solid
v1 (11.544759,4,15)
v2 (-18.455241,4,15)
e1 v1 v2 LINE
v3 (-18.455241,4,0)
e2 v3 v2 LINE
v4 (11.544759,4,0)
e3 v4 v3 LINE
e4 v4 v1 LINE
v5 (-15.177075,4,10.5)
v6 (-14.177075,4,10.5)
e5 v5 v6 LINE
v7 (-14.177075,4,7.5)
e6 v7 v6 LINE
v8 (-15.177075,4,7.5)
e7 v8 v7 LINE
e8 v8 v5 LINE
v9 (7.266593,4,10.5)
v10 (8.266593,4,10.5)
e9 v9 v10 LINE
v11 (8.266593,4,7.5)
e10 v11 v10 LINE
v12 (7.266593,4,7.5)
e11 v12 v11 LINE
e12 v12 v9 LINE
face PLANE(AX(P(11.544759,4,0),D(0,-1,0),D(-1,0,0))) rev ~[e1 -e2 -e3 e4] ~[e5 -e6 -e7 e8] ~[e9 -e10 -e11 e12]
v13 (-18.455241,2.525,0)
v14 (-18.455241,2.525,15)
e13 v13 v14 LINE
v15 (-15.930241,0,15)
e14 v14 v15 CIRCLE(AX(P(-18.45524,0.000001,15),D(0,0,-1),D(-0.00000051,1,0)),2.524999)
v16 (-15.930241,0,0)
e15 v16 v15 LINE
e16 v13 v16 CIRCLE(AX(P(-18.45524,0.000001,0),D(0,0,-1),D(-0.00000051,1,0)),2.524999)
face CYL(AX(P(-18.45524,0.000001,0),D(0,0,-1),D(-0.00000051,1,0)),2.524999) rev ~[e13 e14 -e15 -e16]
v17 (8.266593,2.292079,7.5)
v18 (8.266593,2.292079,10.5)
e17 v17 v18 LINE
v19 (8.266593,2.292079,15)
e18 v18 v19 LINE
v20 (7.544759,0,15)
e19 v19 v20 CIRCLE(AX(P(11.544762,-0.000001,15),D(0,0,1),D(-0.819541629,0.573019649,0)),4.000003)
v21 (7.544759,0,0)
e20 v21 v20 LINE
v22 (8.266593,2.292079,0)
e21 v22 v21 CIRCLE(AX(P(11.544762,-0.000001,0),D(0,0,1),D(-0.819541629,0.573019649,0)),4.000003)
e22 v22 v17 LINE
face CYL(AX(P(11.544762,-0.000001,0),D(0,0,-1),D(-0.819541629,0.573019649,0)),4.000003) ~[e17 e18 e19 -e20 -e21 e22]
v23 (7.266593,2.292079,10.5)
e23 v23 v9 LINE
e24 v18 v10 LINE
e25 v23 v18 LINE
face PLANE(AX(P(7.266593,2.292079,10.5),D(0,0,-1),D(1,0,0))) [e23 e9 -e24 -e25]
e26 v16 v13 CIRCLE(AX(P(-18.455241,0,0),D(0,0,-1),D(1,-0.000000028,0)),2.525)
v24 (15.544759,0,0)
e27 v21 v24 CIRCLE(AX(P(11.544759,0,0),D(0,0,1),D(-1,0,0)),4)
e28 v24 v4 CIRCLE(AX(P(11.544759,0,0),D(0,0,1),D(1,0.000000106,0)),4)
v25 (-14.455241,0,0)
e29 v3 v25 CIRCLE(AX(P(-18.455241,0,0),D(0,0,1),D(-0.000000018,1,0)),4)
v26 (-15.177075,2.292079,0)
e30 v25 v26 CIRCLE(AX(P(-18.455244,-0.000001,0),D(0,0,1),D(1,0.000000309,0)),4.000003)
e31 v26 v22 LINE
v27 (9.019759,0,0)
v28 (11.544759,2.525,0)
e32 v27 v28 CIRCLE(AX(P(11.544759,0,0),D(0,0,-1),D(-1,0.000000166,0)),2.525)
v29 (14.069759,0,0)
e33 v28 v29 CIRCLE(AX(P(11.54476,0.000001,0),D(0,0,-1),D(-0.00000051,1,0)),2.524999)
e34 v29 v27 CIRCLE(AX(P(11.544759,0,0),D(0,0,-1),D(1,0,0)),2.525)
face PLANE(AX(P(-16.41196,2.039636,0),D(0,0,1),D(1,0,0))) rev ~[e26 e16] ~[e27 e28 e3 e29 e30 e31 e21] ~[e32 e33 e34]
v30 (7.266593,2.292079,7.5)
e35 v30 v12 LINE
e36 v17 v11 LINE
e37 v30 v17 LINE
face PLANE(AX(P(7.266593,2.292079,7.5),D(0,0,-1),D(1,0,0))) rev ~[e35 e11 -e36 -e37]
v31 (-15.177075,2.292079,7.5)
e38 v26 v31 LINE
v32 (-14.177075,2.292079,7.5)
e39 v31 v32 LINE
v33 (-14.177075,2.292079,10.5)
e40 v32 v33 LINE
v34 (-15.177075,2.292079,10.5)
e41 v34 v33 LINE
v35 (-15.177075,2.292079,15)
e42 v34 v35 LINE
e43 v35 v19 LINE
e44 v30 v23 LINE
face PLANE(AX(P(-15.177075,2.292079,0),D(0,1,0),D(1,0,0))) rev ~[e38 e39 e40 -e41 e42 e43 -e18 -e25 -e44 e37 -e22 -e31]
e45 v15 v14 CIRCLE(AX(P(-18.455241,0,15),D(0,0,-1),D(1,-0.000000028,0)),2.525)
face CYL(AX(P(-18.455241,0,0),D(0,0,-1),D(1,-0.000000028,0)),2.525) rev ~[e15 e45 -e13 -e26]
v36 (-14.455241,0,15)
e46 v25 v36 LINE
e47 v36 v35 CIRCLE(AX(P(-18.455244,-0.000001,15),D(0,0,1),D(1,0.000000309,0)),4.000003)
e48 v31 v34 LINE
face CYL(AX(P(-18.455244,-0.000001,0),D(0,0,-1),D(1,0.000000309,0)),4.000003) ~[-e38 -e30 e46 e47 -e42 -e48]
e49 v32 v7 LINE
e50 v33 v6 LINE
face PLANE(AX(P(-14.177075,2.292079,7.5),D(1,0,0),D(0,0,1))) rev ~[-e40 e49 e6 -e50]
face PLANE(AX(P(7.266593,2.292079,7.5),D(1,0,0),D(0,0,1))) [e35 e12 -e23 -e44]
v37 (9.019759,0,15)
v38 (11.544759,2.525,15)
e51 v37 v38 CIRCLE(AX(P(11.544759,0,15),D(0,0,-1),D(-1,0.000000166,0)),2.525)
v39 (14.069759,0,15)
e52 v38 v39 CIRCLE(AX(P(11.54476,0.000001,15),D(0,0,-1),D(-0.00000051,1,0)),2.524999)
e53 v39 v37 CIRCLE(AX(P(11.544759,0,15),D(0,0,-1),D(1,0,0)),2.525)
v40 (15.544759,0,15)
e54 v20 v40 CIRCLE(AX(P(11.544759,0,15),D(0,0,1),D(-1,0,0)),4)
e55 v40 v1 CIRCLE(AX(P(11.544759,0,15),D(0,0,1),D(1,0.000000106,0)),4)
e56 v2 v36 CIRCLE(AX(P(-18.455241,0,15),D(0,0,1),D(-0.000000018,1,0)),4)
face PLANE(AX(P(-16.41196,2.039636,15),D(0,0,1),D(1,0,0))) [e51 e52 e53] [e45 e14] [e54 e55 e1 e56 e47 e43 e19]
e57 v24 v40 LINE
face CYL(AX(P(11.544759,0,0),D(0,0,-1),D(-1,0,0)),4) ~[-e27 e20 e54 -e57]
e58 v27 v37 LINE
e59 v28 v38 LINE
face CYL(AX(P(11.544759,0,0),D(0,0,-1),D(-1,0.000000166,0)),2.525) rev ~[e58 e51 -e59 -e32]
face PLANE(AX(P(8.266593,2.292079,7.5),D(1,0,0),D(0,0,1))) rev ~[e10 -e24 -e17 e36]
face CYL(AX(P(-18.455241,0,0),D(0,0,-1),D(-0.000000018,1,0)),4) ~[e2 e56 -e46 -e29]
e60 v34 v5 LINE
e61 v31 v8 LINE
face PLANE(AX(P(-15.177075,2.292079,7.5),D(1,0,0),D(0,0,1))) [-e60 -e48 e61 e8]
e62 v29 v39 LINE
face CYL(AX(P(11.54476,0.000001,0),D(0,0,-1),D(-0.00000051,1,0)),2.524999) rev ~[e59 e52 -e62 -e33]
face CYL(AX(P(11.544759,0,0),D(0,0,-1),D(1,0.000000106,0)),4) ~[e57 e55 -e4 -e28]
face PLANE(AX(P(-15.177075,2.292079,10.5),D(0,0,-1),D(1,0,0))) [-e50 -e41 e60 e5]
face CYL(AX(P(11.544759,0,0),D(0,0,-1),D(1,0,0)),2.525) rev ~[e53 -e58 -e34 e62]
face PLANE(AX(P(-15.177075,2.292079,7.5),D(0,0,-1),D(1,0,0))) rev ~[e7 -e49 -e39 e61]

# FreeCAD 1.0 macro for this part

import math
import FreeCAD as App
import Part
import Sketcher

V = App.Vector
Q = App.Units.Quantity

doc = App.newDocument("Part")
body = doc.addObject("PartDesign::Body", "Body")

# Sketch on XY plane
sketch1 = body.newObject("Sketcher::SketchObject", "Sketch")
sketch1.AttachmentSupport = (doc.getObject("XY_Plane"), [""])
sketch1.MapMode = "FlatFace"
sketch1.addGeometry([
    Part.ArcOfCircle(Part.Circle(V(-18.5, 0, 0), V(0, 0, 1), 4), math.radians(0), math.radians(35)),  # 0
    Part.LineSegment(V(-15.2, 2.3, 0), V(8.3, 2.3, 0)),  # 1
    Part.ArcOfCircle(Part.Circle(V(11.5, 0, 0), V(0, 0, 1), 4), math.radians(145), math.radians(180)),  # 2
    Part.ArcOfCircle(Part.Circle(V(11.5, 0, 0), V(0, 0, 1), 4), math.radians(180), math.radians(360)),  # 3
    Part.ArcOfCircle(Part.Circle(V(11.5, 0, 0), V(0, 0, 1), 4), math.radians(0), math.radians(90)),  # 4
    Part.LineSegment(V(11.5, 4, 0), V(-18.5, 4, 0)),  # 5
    Part.ArcOfCircle(Part.Circle(V(-18.5, 0, 0), V(0, 0, 1), 4), math.radians(90), math.radians(360)),  # 6
    Part.ArcOfCircle(Part.Circle(V(-18.5, 0, 0), V(0, 0, 1), 2.5), math.radians(0), math.radians(90)),  # 7
    Part.ArcOfCircle(Part.Circle(V(-18.5, 0, 0), V(0, 0, 1), 2.5), math.radians(90), math.radians(360)),  # 8
    Part.ArcOfCircle(Part.Circle(V(11.5, 0, 0), V(0, 0, 1), 2.5), math.radians(180), math.radians(360)),  # 9
    Part.ArcOfCircle(Part.Circle(V(11.5, 0, 0), V(0, 0, 1), 2.5), math.radians(90), math.radians(180)),  # 10
    Part.ArcOfCircle(Part.Circle(V(11.5, 0, 0), V(0, 0, 1), 2.5), math.radians(0), math.radians(90)),  # 11
], False)
sketch1.addConstraint([
    Sketcher.Constraint("Coincident", 0, 2, 1, 1),
    Sketcher.Constraint("Coincident", 1, 2, 2, 1),
    Sketcher.Constraint("Tangent", 2, 2, 3, 1),
    Sketcher.Constraint("Tangent", 3, 2, 4, 1),
    Sketcher.Constraint("Tangent", 4, 2, 5, 1),
    Sketcher.Constraint("Tangent", 5, 2, 6, 1),
    Sketcher.Constraint("Tangent", 6, 2, 0, 1),
    Sketcher.Constraint("Tangent", 7, 1, 8, 2),
    Sketcher.Constraint("Coincident", 8, 1, 7, 2),
    Sketcher.Constraint("Tangent", 9, 1, 10, 2),
    Sketcher.Constraint("Tangent", 10, 1, 11, 2),
    Sketcher.Constraint("Tangent", 11, 1, 9, 2),
    Sketcher.Constraint("Horizontal", 1),
    Sketcher.Constraint("Horizontal", 5),
    Sketcher.Constraint("Coincident", 7, 3, 0, 3),
    Sketcher.Constraint("Coincident", 9, 3, 2, 3),
    Sketcher.Constraint("Equal", 0, 2),
    Sketcher.Constraint("Equal", 3, 4),
    Sketcher.Constraint("Equal", 4, 6),
    Sketcher.Constraint("Equal", 8, 9),
    Sketcher.Constraint("PointOnObject", 0, 3, -1),
    Sketcher.Constraint("PointOnObject", 2, 2, -1),
    Sketcher.Constraint("PointOnObject", 3, 2, -1),
    Sketcher.Constraint("PointOnObject", 6, 2, -1),
    Sketcher.Constraint("PointOnObject", 7, 1, -1),
    Sketcher.Constraint("PointOnObject", 9, 1, -1),
    Sketcher.Constraint("PointOnObject", 11, 1, -1),
    Sketcher.Constraint("Vertical", 11, 3, 4, 2),
    Sketcher.Constraint("Vertical", 5, 2, 8, 1),
    Sketcher.Constraint("Vertical", 4, 2, 10, 1),
    Sketcher.Constraint("Radius", 3, Q("4 mm")),
    Sketcher.Constraint("DistanceX", 5, 2, 5, 1, Q("30 mm")),
    Sketcher.Constraint("Radius", 7, Q("2.524999 mm")),
    Sketcher.Constraint("DistanceX", 1, 1, 1, 2, Q("23.443668 mm")),
    Sketcher.Constraint("DistanceX", -1, 1, 2, 3, Q("11.544762 mm")),
])
pad1 = body.newObject("PartDesign::Pad", "Pad")
pad1.Profile = sketch1
pad1.Length = 15

# Sketch on XZ plane
sketch2 = body.newObject("Sketcher::SketchObject", "Sketch001")
sketch2.AttachmentSupport = (doc.getObject("XZ_Plane"), [""])
sketch2.MapMode = "FlatFace"
sketch2.AttachmentOffset = App.Placement(V(0, 0, -2.292079), App.Rotation())
sketch2.addGeometry([
    Part.LineSegment(V(-15.2, 10.5, 0), V(-15.2, 7.5, 0)),  # 0
    Part.LineSegment(V(-15.2, 7.5, 0), V(-14.2, 7.5, 0)),  # 1
    Part.LineSegment(V(-14.2, 7.5, 0), V(-14.2, 10.5, 0)),  # 2
    Part.LineSegment(V(-14.2, 10.5, 0), V(-15.2, 10.5, 0)),  # 3
    Part.LineSegment(V(7.3, 10.5, 0), V(7.3, 7.5, 0)),  # 4
    Part.LineSegment(V(7.3, 7.5, 0), V(8.3, 7.5, 0)),  # 5
    Part.LineSegment(V(8.3, 7.5, 0), V(8.3, 10.5, 0)),  # 6
    Part.LineSegment(V(8.3, 10.5, 0), V(7.3, 10.5, 0)),  # 7
], False)
sketch2.addConstraint([
    Sketcher.Constraint("Coincident", 0, 2, 1, 1),
    Sketcher.Constraint("Coincident", 1, 2, 2, 1),
    Sketcher.Constraint("Coincident", 2, 2, 3, 1),
    Sketcher.Constraint("Coincident", 3, 2, 0, 1),
    Sketcher.Constraint("Coincident", 4, 2, 5, 1),
    Sketcher.Constraint("Coincident", 5, 2, 6, 1),
    Sketcher.Constraint("Coincident", 6, 2, 7, 1),
    Sketcher.Constraint("Coincident", 7, 2, 4, 1),
    Sketcher.Constraint("Vertical", 0),
    Sketcher.Constraint("Horizontal", 1),
    Sketcher.Constraint("Vertical", 2),
    Sketcher.Constraint("Horizontal", 3),
    Sketcher.Constraint("Vertical", 4),
    Sketcher.Constraint("Horizontal", 5),
    Sketcher.Constraint("Vertical", 6),
    Sketcher.Constraint("Horizontal", 7),
    Sketcher.Constraint("Horizontal", 1, 2, 4, 2),
    Sketcher.Constraint("Horizontal", 3, 2, 6, 2),
    Sketcher.Constraint("Equal", 3, 5),
    Sketcher.Constraint("DistanceX", 1, 1, 1, 2, Q("1 mm")),
    Sketcher.Constraint("DistanceY", 0, 2, 0, 1, Q("3 mm")),
    Sketcher.Constraint("DistanceY", -1, 1, 0, 2, Q("7.5 mm")),
    Sketcher.Constraint("DistanceX", 1, 2, 4, 2, Q("21.443668 mm")),
    Sketcher.Constraint("DistanceX", 0, 2, -1, 1, Q("15.177075 mm")),
])
pocket1 = body.newObject("PartDesign::Pocket", "Pocket")
pocket1.Profile = sketch2
pocket1.Length = 25

doc.recompute()
